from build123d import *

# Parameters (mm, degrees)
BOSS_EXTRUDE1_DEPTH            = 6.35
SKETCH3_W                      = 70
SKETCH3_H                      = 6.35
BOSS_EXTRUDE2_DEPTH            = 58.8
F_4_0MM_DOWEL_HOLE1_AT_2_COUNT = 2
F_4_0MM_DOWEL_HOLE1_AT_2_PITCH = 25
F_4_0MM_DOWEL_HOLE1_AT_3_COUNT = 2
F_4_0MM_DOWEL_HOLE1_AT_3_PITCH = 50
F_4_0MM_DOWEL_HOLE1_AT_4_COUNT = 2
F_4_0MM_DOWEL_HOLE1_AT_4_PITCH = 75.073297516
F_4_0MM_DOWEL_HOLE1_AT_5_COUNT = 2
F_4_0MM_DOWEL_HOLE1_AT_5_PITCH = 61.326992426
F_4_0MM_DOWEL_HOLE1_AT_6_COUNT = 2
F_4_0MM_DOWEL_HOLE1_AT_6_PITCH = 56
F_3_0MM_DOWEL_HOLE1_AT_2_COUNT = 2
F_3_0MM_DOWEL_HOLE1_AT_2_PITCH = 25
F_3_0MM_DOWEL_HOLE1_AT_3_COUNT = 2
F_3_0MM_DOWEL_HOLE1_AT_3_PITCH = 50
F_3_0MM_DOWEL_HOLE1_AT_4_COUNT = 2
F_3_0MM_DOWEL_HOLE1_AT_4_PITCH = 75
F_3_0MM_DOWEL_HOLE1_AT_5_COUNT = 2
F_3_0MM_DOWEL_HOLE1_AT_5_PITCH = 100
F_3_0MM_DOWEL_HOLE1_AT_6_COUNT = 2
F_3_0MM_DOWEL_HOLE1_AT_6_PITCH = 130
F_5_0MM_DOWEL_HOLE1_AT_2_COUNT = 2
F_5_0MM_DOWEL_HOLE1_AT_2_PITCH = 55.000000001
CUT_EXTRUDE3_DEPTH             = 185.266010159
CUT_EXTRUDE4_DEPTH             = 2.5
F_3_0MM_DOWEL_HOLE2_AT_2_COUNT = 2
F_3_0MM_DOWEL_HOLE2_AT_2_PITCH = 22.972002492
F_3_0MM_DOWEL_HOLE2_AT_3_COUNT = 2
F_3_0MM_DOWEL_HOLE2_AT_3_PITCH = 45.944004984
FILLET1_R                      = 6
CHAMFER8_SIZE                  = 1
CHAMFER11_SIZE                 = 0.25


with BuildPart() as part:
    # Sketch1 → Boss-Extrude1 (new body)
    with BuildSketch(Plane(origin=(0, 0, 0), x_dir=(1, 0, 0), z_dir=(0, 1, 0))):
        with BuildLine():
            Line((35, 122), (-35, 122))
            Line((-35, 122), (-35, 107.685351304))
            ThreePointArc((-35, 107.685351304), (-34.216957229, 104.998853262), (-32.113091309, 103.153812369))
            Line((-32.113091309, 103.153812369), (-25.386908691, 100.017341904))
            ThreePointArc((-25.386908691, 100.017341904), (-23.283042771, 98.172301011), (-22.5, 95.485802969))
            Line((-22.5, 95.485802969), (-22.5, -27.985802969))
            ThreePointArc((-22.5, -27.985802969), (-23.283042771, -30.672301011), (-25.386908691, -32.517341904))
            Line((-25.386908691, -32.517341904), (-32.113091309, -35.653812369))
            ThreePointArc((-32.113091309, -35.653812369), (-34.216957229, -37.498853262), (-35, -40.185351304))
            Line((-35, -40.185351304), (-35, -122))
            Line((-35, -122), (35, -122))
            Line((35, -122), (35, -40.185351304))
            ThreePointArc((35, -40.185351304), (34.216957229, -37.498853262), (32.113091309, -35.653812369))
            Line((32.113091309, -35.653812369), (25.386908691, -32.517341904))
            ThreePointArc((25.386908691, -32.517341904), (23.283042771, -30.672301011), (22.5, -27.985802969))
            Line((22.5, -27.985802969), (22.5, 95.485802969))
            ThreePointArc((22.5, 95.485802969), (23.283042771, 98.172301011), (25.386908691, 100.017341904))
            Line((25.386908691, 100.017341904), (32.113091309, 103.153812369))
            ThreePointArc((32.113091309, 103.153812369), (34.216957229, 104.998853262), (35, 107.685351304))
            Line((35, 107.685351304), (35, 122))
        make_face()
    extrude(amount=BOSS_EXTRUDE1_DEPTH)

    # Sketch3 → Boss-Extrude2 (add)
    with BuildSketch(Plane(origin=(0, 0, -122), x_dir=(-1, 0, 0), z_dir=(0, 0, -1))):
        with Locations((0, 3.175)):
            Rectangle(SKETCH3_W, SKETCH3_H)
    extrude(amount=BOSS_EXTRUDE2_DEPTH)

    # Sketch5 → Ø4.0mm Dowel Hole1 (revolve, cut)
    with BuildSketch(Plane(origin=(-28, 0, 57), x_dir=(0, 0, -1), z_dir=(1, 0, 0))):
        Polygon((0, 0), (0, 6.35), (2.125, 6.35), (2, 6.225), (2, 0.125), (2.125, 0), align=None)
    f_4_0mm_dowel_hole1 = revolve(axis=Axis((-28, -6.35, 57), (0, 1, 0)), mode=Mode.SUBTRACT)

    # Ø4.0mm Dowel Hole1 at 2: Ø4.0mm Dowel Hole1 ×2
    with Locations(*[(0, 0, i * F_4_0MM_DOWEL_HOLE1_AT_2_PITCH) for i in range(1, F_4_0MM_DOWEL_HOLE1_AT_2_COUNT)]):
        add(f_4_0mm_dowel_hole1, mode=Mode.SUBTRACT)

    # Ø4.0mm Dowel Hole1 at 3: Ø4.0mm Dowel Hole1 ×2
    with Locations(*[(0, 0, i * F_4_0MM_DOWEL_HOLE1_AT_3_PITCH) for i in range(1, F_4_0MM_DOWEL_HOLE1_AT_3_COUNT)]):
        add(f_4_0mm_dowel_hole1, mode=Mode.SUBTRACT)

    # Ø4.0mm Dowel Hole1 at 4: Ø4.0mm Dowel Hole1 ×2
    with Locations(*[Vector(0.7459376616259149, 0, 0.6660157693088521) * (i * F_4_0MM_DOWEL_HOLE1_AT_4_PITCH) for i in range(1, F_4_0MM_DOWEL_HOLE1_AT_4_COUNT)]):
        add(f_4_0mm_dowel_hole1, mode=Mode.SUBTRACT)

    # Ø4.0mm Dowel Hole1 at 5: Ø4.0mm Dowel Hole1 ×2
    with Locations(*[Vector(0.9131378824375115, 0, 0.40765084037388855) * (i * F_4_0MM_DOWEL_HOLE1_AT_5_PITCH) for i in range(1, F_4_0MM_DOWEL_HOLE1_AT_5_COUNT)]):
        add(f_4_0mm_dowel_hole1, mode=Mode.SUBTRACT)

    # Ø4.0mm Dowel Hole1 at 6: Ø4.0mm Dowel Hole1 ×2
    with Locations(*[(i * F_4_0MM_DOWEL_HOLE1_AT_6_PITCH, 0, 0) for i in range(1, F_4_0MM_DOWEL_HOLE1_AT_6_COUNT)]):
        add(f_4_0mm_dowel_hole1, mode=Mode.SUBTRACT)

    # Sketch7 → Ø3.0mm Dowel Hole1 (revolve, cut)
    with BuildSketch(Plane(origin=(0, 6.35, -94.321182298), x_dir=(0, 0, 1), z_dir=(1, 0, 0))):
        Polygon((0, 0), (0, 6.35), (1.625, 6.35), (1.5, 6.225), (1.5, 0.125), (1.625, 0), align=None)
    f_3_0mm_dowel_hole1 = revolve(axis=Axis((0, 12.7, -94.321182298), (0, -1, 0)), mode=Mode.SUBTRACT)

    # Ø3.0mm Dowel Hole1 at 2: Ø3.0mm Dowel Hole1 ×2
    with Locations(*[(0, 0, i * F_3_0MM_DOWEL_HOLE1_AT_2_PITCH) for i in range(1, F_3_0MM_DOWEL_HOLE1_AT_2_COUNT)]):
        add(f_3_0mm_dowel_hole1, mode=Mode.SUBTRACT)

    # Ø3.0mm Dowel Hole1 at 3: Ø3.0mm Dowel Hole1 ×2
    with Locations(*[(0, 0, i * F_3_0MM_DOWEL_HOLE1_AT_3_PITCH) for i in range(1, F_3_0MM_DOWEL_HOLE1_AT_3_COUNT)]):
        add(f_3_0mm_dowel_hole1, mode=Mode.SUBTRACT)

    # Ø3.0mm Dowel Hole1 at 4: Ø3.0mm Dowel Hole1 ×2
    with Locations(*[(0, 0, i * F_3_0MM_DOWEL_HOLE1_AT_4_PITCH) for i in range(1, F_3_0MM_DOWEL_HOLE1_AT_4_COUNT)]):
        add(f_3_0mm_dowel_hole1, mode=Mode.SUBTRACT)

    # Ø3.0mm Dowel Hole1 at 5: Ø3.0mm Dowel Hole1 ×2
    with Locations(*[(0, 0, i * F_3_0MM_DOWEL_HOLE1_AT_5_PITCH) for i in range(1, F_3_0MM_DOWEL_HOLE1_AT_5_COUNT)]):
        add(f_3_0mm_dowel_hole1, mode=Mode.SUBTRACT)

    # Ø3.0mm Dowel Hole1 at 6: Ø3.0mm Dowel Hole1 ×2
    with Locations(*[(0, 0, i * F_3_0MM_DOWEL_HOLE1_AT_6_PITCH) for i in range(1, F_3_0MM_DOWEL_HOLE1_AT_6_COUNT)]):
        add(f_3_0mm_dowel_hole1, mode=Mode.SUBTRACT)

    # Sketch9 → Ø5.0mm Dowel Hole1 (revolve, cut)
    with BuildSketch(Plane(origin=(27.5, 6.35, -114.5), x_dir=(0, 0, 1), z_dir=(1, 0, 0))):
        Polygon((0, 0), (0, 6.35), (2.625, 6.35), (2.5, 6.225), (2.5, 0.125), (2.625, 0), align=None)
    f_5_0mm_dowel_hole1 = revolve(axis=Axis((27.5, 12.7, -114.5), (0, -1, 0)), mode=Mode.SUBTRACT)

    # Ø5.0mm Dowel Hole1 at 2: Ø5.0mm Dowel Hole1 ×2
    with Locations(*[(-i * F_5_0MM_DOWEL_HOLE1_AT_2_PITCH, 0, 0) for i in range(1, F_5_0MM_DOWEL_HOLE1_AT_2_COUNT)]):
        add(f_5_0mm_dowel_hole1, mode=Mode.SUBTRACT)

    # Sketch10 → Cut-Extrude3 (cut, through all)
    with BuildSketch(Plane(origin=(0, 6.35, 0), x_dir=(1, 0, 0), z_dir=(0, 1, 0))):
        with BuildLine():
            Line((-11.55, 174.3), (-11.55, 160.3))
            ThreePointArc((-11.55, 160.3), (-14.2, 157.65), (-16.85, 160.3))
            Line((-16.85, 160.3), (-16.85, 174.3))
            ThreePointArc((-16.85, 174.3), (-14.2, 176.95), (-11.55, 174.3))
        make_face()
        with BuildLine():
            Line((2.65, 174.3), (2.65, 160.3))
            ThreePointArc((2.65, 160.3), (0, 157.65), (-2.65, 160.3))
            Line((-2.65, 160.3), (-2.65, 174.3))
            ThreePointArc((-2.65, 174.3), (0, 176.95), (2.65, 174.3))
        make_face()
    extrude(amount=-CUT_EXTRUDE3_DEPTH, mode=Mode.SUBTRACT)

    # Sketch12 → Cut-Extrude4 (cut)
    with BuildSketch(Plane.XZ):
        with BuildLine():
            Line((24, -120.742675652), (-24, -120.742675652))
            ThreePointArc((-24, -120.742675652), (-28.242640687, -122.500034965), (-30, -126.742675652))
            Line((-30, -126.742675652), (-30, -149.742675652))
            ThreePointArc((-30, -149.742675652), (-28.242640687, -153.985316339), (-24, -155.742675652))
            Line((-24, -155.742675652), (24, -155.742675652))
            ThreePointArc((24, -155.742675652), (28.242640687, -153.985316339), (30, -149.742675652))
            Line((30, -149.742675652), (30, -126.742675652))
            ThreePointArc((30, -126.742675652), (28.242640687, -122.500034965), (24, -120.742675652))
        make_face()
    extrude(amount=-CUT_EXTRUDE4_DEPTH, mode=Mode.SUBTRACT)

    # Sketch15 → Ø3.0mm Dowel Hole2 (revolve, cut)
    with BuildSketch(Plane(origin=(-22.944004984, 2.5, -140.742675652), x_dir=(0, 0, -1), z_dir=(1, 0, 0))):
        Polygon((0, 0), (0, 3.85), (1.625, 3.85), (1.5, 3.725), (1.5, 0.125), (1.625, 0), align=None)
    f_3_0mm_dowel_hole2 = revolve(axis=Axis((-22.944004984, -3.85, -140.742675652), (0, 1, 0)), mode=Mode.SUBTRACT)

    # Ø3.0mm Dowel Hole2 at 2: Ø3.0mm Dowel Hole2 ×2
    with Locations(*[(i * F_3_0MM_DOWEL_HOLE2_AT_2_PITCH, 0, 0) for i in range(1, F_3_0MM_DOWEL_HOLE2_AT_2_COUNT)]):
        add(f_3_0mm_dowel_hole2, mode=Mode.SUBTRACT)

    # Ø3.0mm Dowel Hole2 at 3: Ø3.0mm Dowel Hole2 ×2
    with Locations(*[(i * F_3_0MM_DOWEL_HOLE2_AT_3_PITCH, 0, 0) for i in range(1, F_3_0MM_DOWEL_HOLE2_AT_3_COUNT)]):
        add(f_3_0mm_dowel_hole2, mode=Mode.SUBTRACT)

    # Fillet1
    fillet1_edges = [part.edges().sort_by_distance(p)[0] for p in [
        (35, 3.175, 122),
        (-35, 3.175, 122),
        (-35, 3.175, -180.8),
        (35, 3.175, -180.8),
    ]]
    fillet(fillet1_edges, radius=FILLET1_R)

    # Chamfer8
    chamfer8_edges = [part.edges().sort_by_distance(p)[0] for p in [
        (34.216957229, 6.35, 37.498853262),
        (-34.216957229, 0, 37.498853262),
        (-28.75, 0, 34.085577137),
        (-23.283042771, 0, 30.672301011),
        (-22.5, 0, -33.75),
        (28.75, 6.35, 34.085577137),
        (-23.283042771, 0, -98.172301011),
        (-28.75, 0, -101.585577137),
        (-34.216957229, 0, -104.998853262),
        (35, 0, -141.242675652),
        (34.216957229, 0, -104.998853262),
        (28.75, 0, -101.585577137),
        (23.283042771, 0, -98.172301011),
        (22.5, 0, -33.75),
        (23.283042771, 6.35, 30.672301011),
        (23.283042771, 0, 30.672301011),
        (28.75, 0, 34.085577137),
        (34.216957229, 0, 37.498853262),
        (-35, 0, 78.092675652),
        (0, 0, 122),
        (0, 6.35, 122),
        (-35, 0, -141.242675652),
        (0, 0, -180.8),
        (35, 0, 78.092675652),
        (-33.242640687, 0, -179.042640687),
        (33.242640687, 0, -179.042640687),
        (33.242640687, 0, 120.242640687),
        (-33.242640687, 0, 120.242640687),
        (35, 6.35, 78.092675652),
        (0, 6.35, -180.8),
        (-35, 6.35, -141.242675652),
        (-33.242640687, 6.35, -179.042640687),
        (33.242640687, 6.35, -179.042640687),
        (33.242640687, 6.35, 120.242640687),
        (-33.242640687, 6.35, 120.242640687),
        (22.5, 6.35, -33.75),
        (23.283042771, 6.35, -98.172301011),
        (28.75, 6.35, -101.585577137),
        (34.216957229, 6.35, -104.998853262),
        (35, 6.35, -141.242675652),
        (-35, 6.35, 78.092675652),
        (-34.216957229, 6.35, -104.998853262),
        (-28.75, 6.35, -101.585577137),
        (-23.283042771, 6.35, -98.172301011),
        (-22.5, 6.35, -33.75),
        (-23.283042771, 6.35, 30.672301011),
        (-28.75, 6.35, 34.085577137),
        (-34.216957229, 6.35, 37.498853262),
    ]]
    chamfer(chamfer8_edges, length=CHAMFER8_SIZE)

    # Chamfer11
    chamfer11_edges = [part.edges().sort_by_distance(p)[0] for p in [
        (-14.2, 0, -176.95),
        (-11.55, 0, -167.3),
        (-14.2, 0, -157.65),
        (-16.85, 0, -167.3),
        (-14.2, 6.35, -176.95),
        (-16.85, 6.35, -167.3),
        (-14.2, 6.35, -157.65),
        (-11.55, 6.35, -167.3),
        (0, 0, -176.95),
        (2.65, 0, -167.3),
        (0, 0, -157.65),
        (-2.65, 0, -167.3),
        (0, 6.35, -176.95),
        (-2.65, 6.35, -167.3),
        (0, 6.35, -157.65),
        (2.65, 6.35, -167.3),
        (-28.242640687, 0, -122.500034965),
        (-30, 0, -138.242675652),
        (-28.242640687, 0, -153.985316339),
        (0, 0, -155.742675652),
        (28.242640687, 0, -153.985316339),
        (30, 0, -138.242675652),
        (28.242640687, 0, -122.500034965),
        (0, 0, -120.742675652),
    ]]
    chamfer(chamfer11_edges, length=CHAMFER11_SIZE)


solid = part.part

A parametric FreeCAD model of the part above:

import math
import FreeCAD as App
import Part
import Sketcher
Q = App.Units.Quantity


def edges_at(feature, points):
    """Names of the edges that pass closest to the given points."""
    edges = feature.Shape.Edges
    near = lambda p: min(range(len(edges)), key=lambda i: edges[i].distToShape(Part.Vertex(*p))[0])
    return sorted({f"Edge{near(p) + 1}" for p in points})

doc = App.newDocument("Part")
params = doc.addObject("Spreadsheet::Sheet", "Params")
for row, (alias, value) in enumerate([
    ("sketch1_radius", "5 mm"),
    ("sketch1_width", "70 mm"),
    ("pad1_length", "6.35 mm"),
    ("sketch2_width", "70 mm"),
    ("sketch2_height", "6.35 mm"),
    ("pad2_length", "58.8 mm"),
    ("sketch3_width", "6.1 mm"),
    ("sketch3_width2", "6.35 mm"),
    ("groove_angle", "360 deg"),
    ("linearpattern_pitch", "25 mm"),
    ("linearpattern2_pitch", "50 mm"),
    ("linearpattern3_pitch", "75.073298 mm"),
    ("linearpattern4_pitch", "61.326992 mm"),
    ("linearpattern5_pitch", "56 mm"),
    ("sketch4_width", "6.1 mm"),
    ("sketch4_width2", "6.35 mm"),
    ("groove2_angle", "360 deg"),
    ("linearpattern6_pitch", "25 mm"),
    ("linearpattern7_pitch", "50 mm"),
    ("linearpattern8_pitch", "75 mm"),
    ("linearpattern9_pitch", "100 mm"),
    ("linearpattern10_pitch", "130 mm"),
    ("sketch5_width", "6.1 mm"),
    ("sketch5_width2", "6.35 mm"),
    ("groove3_angle", "360 deg"),
    ("linearpattern11_pitch", "55 mm"),
    ("sketch6_height", "14 mm"),
    ("sketch6_radius", "2.65 mm"),
    ("sketch7_radius", "6 mm"),
    ("sketch7_width", "48 mm"),
    ("sketch7_height", "23 mm"),
    ("pocket2_length", "2.5 mm"),
    ("sketch8_width", "3.6 mm"),
    ("sketch8_width2", "3.85 mm"),
    ("groove4_angle", "360 deg"),
    ("linearpattern12_pitch", "22.972002 mm"),
    ("linearpattern13_pitch", "45.944005 mm"),
    ("fillet_radius", "6 mm"),
    ("chamfer_size", "1 mm"),
    ("chamfer2_size", "0.25 mm"),
], start=1):
    params.set(f"A{row}", alias)
    params.set(f"B{row}", "=" + value)
    params.setAlias(f"B{row}", alias)

body = doc.addObject("PartDesign::Body", "Body")

sketch1 = doc.addObject("Sketcher::SketchObject", "Sketch")
body.addObject(sketch1)
sketch1.AttachmentSupport = (doc.XZ_Plane, [""])
sketch1.MapMode = "FlatFace"
sketch1.addGeometry([
    Part.LineSegment(App.Vector(35, -122, 0), App.Vector(-35, -122, 0)),
    Part.LineSegment(App.Vector(-35, -122, 0), App.Vector(-35, -107.685351, 0)),
    Part.ArcOfCircle(Part.Circle(App.Vector(-30, -107.685351, 0), App.Vector(0, 0, 1), 5), math.radians(115), math.radians(180)),
    Part.LineSegment(App.Vector(-32.113091, -103.153812, 0), App.Vector(-25.386909, -100.017342, 0)),
    Part.ArcOfCircle(Part.Circle(App.Vector(-27.5, -95.485803, 0), App.Vector(0, 0, 1), 5), math.radians(-65), math.radians(0)),
    Part.LineSegment(App.Vector(-22.5, -95.485803, 0), App.Vector(-22.5, 27.985803, 0)),
    Part.ArcOfCircle(Part.Circle(App.Vector(-27.5, 27.985803, 0), App.Vector(0, 0, 1), 5), math.radians(0), math.radians(65)),
    Part.LineSegment(App.Vector(-25.386909, 32.517342, 0), App.Vector(-32.113091, 35.653812, 0)),
    Part.ArcOfCircle(Part.Circle(App.Vector(-30, 40.185351, 0), App.Vector(0, 0, 1), 5), math.radians(180), math.radians(245)),
    Part.LineSegment(App.Vector(-35, 40.185351, 0), App.Vector(-35, 122, 0)),
    Part.LineSegment(App.Vector(-35, 122, 0), App.Vector(35, 122, 0)),
    Part.LineSegment(App.Vector(35, 122, 0), App.Vector(35, 40.185351, 0)),
    Part.ArcOfCircle(Part.Circle(App.Vector(30, 40.185351, 0), App.Vector(0, 0, 1), 5), math.radians(-65), math.radians(0)),
    Part.LineSegment(App.Vector(32.113091, 35.653812, 0), App.Vector(25.386909, 32.517342, 0)),
    Part.ArcOfCircle(Part.Circle(App.Vector(27.5, 27.985803, 0), App.Vector(0, 0, 1), 5), math.radians(115), math.radians(180)),
    Part.LineSegment(App.Vector(22.5, 27.985803, 0), App.Vector(22.5, -95.485803, 0)),
    Part.ArcOfCircle(Part.Circle(App.Vector(27.5, -95.485803, 0), App.Vector(0, 0, 1), 5), math.radians(180), math.radians(245)),
    Part.LineSegment(App.Vector(25.386909, -100.017342, 0), App.Vector(32.113091, -103.153812, 0)),
    Part.ArcOfCircle(Part.Circle(App.Vector(30, -107.685351, 0), App.Vector(0, 0, 1), 5), math.radians(0), math.radians(65)),
    Part.LineSegment(App.Vector(35, -107.685351, 0), App.Vector(35, -122, 0)),
], False)
sketch1.addConstraint([
    Sketcher.Constraint("Coincident", 0, 2, 1, 1),
    Sketcher.Constraint("Tangent", 1, 2, 2, 2),
    Sketcher.Constraint("Tangent", 2, 1, 3, 1),
    Sketcher.Constraint("Tangent", 3, 2, 4, 1),
    Sketcher.Constraint("Tangent", 4, 2, 5, 1),
    Sketcher.Constraint("Tangent", 5, 2, 6, 1),
    Sketcher.Constraint("Tangent", 6, 2, 7, 1),
    Sketcher.Constraint("Tangent", 7, 2, 8, 2),
    Sketcher.Constraint("Tangent", 8, 1, 9, 1),
    Sketcher.Constraint("Coincident", 9, 2, 10, 1),
    Sketcher.Constraint("Coincident", 10, 2, 11, 1),
    Sketcher.Constraint("Tangent", 11, 2, 12, 2),
    Sketcher.Constraint("Tangent", 12, 1, 13, 1),
    Sketcher.Constraint("Tangent", 13, 2, 14, 1),
    Sketcher.Constraint("Tangent", 14, 2, 15, 1),
    Sketcher.Constraint("Tangent", 15, 2, 16, 1),
    Sketcher.Constraint("Tangent", 16, 2, 17, 1),
    Sketcher.Constraint("Tangent", 17, 2, 18, 2),
    Sketcher.Constraint("Tangent", 18, 1, 19, 1),
    Sketcher.Constraint("Coincident", 19, 2, 0, 1),
    Sketcher.Constraint("Horizontal", 0),
    Sketcher.Constraint("Vertical", 1),
    Sketcher.Constraint("Vertical", 5),
    Sketcher.Constraint("Vertical", 9),
    Sketcher.Constraint("Horizontal", 10),
    Sketcher.Constraint("Vertical", 11),
    Sketcher.Constraint("Vertical", 15),
    Sketcher.Constraint("Vertical", 19),
    Sketcher.Constraint("Equal", 2, 4),
    Sketcher.Constraint("Equal", 4, 6),
    Sketcher.Constraint("Equal", 6, 8),
    Sketcher.Constraint("Equal", 8, 12),
    Sketcher.Constraint("Equal", 12, 14),
    Sketcher.Constraint("Equal", 14, 16),
    Sketcher.Constraint("Equal", 16, 18),
    Sketcher.Constraint("Symmetric", 0, 2, 10, 2, -1, 1),
    Sketcher.Constraint("Symmetric", 8, 3, 12, 3, -2),
    Sketcher.Constraint("Symmetric", 6, 3, 14, 3, -2),
    Sketcher.Constraint("Symmetric", 2, 3, 18, 3, -2),
    Sketcher.Constraint("Parallel", 3, 13),
    Sketcher.Constraint("Parallel", 7, 17),
    Sketcher.Constraint("Radius", 2, 5.0),
    Sketcher.Constraint("DistanceX", 0, 2, 0, 1, 70.0),
    Sketcher.Constraint("Angle", 3, Q("25 deg")),
    Sketcher.Constraint("DistanceY", 0, 2, -1, 1, 122.0),
    Sketcher.Constraint("DistanceX", 6, 3, 14, 3, 55.0),
    Sketcher.Constraint("DistanceY", 1, 1, 1, 2, 14.314649),
    Sketcher.Constraint("DistanceY", 9, 1, 9, 2, 81.814649),
])
sketch1.setExpression("Constraints[41]", "Params.sketch1_radius")
sketch1.setExpression("Constraints[42]", "Params.sketch1_width")
pad1 = doc.addObject("PartDesign::Pad", "Pad")
body.addObject(pad1)
pad1.Profile = sketch1
pad1.setExpression("Length", "Params.pad1_length")
pad1.Reversed = True

sketch2 = doc.addObject("Sketcher::SketchObject", "Sketch001")
body.addObject(sketch2)
sketch2.AttachmentSupport = (doc.XY_Plane, [""])
sketch2.MapMode = "FlatFace"
sketch2.AttachmentOffset = App.Placement(App.Vector(0, 0, -122), App.Rotation())
sketch2.addGeometry([
    Part.LineSegment(App.Vector(35, 6.35, 0), App.Vector(35, 0, 0)),
    Part.LineSegment(App.Vector(35, 0, 0), App.Vector(-35, 0, 0)),
    Part.LineSegment(App.Vector(-35, 0, 0), App.Vector(-35, 6.35, 0)),
    Part.LineSegment(App.Vector(-35, 6.35, 0), App.Vector(35, 6.35, 0)),
], False)
sketch2.addConstraint([
    Sketcher.Constraint("Coincident", 0, 2, 1, 1),
    Sketcher.Constraint("Coincident", 1, 2, 2, 1),
    Sketcher.Constraint("Coincident", 2, 2, 3, 1),
    Sketcher.Constraint("Coincident", 3, 2, 0, 1),
    Sketcher.Constraint("Vertical", 0),
    Sketcher.Constraint("Horizontal", 1),
    Sketcher.Constraint("Vertical", 2),
    Sketcher.Constraint("Horizontal", 3),
    Sketcher.Constraint("Symmetric", 0, 2, 1, 2, -1, 1),
    Sketcher.Constraint("DistanceX", 1, 2, 1, 1, 70.0),
    Sketcher.Constraint("DistanceY", 0, 2, 0, 1, 6.35),
])
sketch2.setExpression("Constraints[9]", "Params.sketch2_width")
sketch2.setExpression("Constraints[10]", "Params.sketch2_height")
pad2 = doc.addObject("PartDesign::Pad", "Pad001")
body.addObject(pad2)
pad2.Profile = sketch2
pad2.setExpression("Length", "Params.pad2_length")
pad2.Reversed = True

sketch3 = doc.addObject("Sketcher::SketchObject", "Sketch002")
body.addObject(sketch3)
sketch3.AttachmentSupport = (doc.YZ_Plane, [""])
sketch3.MapMode = "FlatFace"
sketch3.AttachmentOffset = App.Placement(App.Vector(0, 0, -28), App.Rotation())
sketch3.addGeometry([
    Part.LineSegment(App.Vector(6.35, 57, 0), App.Vector(0, 57, 0)),
    Part.LineSegment(App.Vector(0, 57, 0), App.Vector(0, 54.875, 0)),
    Part.LineSegment(App.Vector(0, 54.875, 0), App.Vector(0.125, 55, 0)),
    Part.LineSegment(App.Vector(0.125, 55, 0), App.Vector(6.225, 55, 0)),
    Part.LineSegment(App.Vector(6.225, 55, 0), App.Vector(6.35, 54.875, 0)),
    Part.LineSegment(App.Vector(6.35, 54.875, 0), App.Vector(6.35, 57, 0)),
], False)
sketch3.addGeometry(Part.LineSegment(App.Vector(0, 57, 0), App.Vector(6.35, 57, 0)), True)
sketch3.addConstraint([
    Sketcher.Constraint("Coincident", 0, 2, 1, 1),
    Sketcher.Constraint("Coincident", 1, 2, 2, 1),
    Sketcher.Constraint("Coincident", 2, 2, 3, 1),
    Sketcher.Constraint("Coincident", 3, 2, 4, 1),
    Sketcher.Constraint("Coincident", 4, 2, 5, 1),
    Sketcher.Constraint("Coincident", 5, 2, 0, 1),
    Sketcher.Constraint("Horizontal", 0),
    Sketcher.Constraint("Vertical", 1),
    Sketcher.Constraint("Horizontal", 3),
    Sketcher.Constraint("Vertical", 5),
    Sketcher.Constraint("Horizontal", 6),
    Sketcher.Constraint("Coincident", 6, 1, 0, 2),
    Sketcher.Constraint("PointOnObject", 0, 2, -2),
    Sketcher.Constraint("Perpendicular", 2, 4),
    Sketcher.Constraint("Horizontal", 1, 2, 4, 2),
    Sketcher.Constraint("Vertical", 4, 2, 6, 2),
    Sketcher.Constraint("Equal", 2, 4),
    Sketcher.Constraint("DistanceX", 3, 1, 3, 2, 6.1),
    Sketcher.Constraint("DistanceY", -1, 1, 0, 2, 57.0),
    Sketcher.Constraint("DistanceY", -1, 1, 2, 2, 55.0),
    Sketcher.Constraint("DistanceX", 0, 2, 0, 1, 6.35),
])
sketch3.setExpression("Constraints[17]", "Params.sketch3_width")
sketch3.setExpression("Constraints[20]", "Params.sketch3_width2")
groove = doc.addObject("PartDesign::Groove", "Groove")
body.addObject(groove)
groove.Profile = sketch3
groove.ReferenceAxis = (sketch3, ["Axis0"])
groove.setExpression("Angle", "Params.groove_angle")
doc.recompute()

linearpattern = doc.addObject("PartDesign::LinearPattern", "LinearPattern")
body.addObject(linearpattern)
linearpattern.Originals = [groove]
linearpattern.Direction = (doc.Z_Axis, [""])
linearpattern.Mode = "offset"
linearpattern.setExpression("Offset", "Params.linearpattern_pitch")
linearpattern.Occurrences = 2
body.Tip = linearpattern
doc.recompute()

linearpattern2 = doc.addObject("PartDesign::LinearPattern", "LinearPattern001")
body.addObject(linearpattern2)
linearpattern2.Originals = [groove]
linearpattern2.Direction = (doc.Z_Axis, [""])
linearpattern2.Mode = "offset"
linearpattern2.setExpression("Offset", "Params.linearpattern2_pitch")
linearpattern2.Occurrences = 2
body.Tip = linearpattern2
doc.recompute()

datumline = doc.addObject("PartDesign::Line", "DatumLine")
body.addObject(datumline)
datumline.Placement = App.Placement(App.Vector(0, 0, 0), App.Rotation(App.Vector(0, 0, 1), App.Vector(0.745937662, 0, 0.666015769)))
linearpattern3 = doc.addObject("PartDesign::LinearPattern", "LinearPattern002")
body.addObject(linearpattern3)
linearpattern3.Originals = [groove]
linearpattern3.Direction = (datumline, [""])
linearpattern3.Mode = "offset"
linearpattern3.setExpression("Offset", "Params.linearpattern3_pitch")
linearpattern3.Occurrences = 2
body.Tip = linearpattern3
doc.recompute()

datumline2 = doc.addObject("PartDesign::Line", "DatumLine001")
body.addObject(datumline2)
datumline2.Placement = App.Placement(App.Vector(0, 0, 0), App.Rotation(App.Vector(0, 0, 1), App.Vector(0.913137882, 0, 0.40765084)))
linearpattern4 = doc.addObject("PartDesign::LinearPattern", "LinearPattern003")
body.addObject(linearpattern4)
linearpattern4.Originals = [groove]
linearpattern4.Direction = (datumline2, [""])
linearpattern4.Mode = "offset"
linearpattern4.setExpression("Offset", "Params.linearpattern4_pitch")
linearpattern4.Occurrences = 2
body.Tip = linearpattern4
doc.recompute()

linearpattern5 = doc.addObject("PartDesign::LinearPattern", "LinearPattern004")
body.addObject(linearpattern5)
linearpattern5.Originals = [groove]
linearpattern5.Direction = (doc.X_Axis, [""])
linearpattern5.Mode = "offset"
linearpattern5.setExpression("Offset", "Params.linearpattern5_pitch")
linearpattern5.Occurrences = 2
body.Tip = linearpattern5

sketch4 = doc.addObject("Sketcher::SketchObject", "Sketch003")
body.addObject(sketch4)
sketch4.AttachmentSupport = (doc.YZ_Plane, [""])
sketch4.MapMode = "FlatFace"
sketch4.addGeometry([
    Part.LineSegment(App.Vector(0, -94.321182, 0), App.Vector(6.35, -94.321182, 0)),
    Part.LineSegment(App.Vector(6.35, -94.321182, 0), App.Vector(6.35, -92.696182, 0)),
    Part.LineSegment(App.Vector(6.35, -92.696182, 0), App.Vector(6.225, -92.821182, 0)),
    Part.LineSegment(App.Vector(6.225, -92.821182, 0), App.Vector(0.125, -92.821182, 0)),
    Part.LineSegment(App.Vector(0.125, -92.821182, 0), App.Vector(0, -92.696182, 0)),
    Part.LineSegment(App.Vector(0, -92.696182, 0), App.Vector(0, -94.321182, 0)),
], False)
sketch4.addGeometry(Part.LineSegment(App.Vector(6.35, -94.321182, 0), App.Vector(0, -94.321182, 0)), True)
sketch4.addConstraint([
    Sketcher.Constraint("Coincident", 0, 2, 1, 1),
    Sketcher.Constraint("Coincident", 1, 2, 2, 1),
    Sketcher.Constraint("Coincident", 2, 2, 3, 1),
    Sketcher.Constraint("Coincident", 3, 2, 4, 1),
    Sketcher.Constraint("Coincident", 4, 2, 5, 1),
    Sketcher.Constraint("Coincident", 5, 2, 0, 1),
    Sketcher.Constraint("Horizontal", 0),
    Sketcher.Constraint("Vertical", 1),
    Sketcher.Constraint("Horizontal", 3),
    Sketcher.Constraint("Vertical", 5),
    Sketcher.Constraint("Horizontal", 6),
    Sketcher.Constraint("Coincident", 6, 1, 0, 2),
    Sketcher.Constraint("PointOnObject", 4, 2, -2),
    Sketcher.Constraint("PointOnObject", 6, 2, -2),
    Sketcher.Constraint("Perpendicular", 2, 4),
    Sketcher.Constraint("Horizontal", 1, 2, 4, 2),
    Sketcher.Constraint("Equal", 2, 4),
    Sketcher.Constraint("DistanceX", 3, 2, 3, 1, 6.1),
    Sketcher.Constraint("DistanceX", 0, 1, 0, 2, 6.35),
    Sketcher.Constraint("DistanceY", 0, 2, 2, 2, 1.5),
    Sketcher.Constraint("DistanceY", 0, 2, -1, 1, 94.321182),
])
sketch4.setExpression("Constraints[17]", "Params.sketch4_width")
sketch4.setExpression("Constraints[18]", "Params.sketch4_width2")
groove2 = doc.addObject("PartDesign::Groove", "Groove001")
body.addObject(groove2)
groove2.Profile = sketch4
groove2.ReferenceAxis = (sketch4, ["Axis0"])
groove2.setExpression("Angle", "Params.groove2_angle")
doc.recompute()

linearpattern6 = doc.addObject("PartDesign::LinearPattern", "LinearPattern005")
body.addObject(linearpattern6)
linearpattern6.Originals = [groove2]
linearpattern6.Direction = (doc.Z_Axis, [""])
linearpattern6.Mode = "offset"
linearpattern6.setExpression("Offset", "Params.linearpattern6_pitch")
linearpattern6.Occurrences = 2
body.Tip = linearpattern6
doc.recompute()

linearpattern7 = doc.addObject("PartDesign::LinearPattern", "LinearPattern006")
body.addObject(linearpattern7)
linearpattern7.Originals = [groove2]
linearpattern7.Direction = (doc.Z_Axis, [""])
linearpattern7.Mode = "offset"
linearpattern7.setExpression("Offset", "Params.linearpattern7_pitch")
linearpattern7.Occurrences = 2
body.Tip = linearpattern7
doc.recompute()

linearpattern8 = doc.addObject("PartDesign::LinearPattern", "LinearPattern007")
body.addObject(linearpattern8)
linearpattern8.Originals = [groove2]
linearpattern8.Direction = (doc.Z_Axis, [""])
linearpattern8.Mode = "offset"
linearpattern8.setExpression("Offset", "Params.linearpattern8_pitch")
linearpattern8.Occurrences = 2
body.Tip = linearpattern8
doc.recompute()

linearpattern9 = doc.addObject("PartDesign::LinearPattern", "LinearPattern008")
body.addObject(linearpattern9)
linearpattern9.Originals = [groove2]
linearpattern9.Direction = (doc.Z_Axis, [""])
linearpattern9.Mode = "offset"
linearpattern9.setExpression("Offset", "Params.linearpattern9_pitch")
linearpattern9.Occurrences = 2
body.Tip = linearpattern9
doc.recompute()

linearpattern10 = doc.addObject("PartDesign::LinearPattern", "LinearPattern009")
body.addObject(linearpattern10)
linearpattern10.Originals = [groove2]
linearpattern10.Direction = (doc.Z_Axis, [""])
linearpattern10.Mode = "offset"
linearpattern10.setExpression("Offset", "Params.linearpattern10_pitch")
linearpattern10.Occurrences = 2
body.Tip = linearpattern10

sketch5 = doc.addObject("Sketcher::SketchObject", "Sketch004")
body.addObject(sketch5)
sketch5.AttachmentSupport = (doc.YZ_Plane, [""])
sketch5.MapMode = "FlatFace"
sketch5.AttachmentOffset = App.Placement(App.Vector(0, 0, 27.5), App.Rotation())
sketch5.addGeometry([
    Part.LineSegment(App.Vector(0, -114.5, 0), App.Vector(6.35, -114.5, 0)),
    Part.LineSegment(App.Vector(6.35, -114.5, 0), App.Vector(6.35, -111.875, 0)),
    Part.LineSegment(App.Vector(6.35, -111.875, 0), App.Vector(6.225, -112, 0)),
    Part.LineSegment(App.Vector(6.225, -112, 0), App.Vector(0.125, -112, 0)),
    Part.LineSegment(App.Vector(0.125, -112, 0), App.Vector(0, -111.875, 0)),
    Part.LineSegment(App.Vector(0, -111.875, 0), App.Vector(0, -114.5, 0)),
], False)
sketch5.addGeometry(Part.LineSegment(App.Vector(6.35, -114.5, 0), App.Vector(0, -114.5, 0)), True)
sketch5.addConstraint([
    Sketcher.Constraint("Coincident", 0, 2, 1, 1),
    Sketcher.Constraint("Coincident", 1, 2, 2, 1),
    Sketcher.Constraint("Coincident", 2, 2, 3, 1),
    Sketcher.Constraint("Coincident", 3, 2, 4, 1),
    Sketcher.Constraint("Coincident", 4, 2, 5, 1),
    Sketcher.Constraint("Coincident", 5, 2, 0, 1),
    Sketcher.Constraint("Horizontal", 0),
    Sketcher.Constraint("Vertical", 1),
    Sketcher.Constraint("Horizontal", 3),
    Sketcher.Constraint("Vertical", 5),
    Sketcher.Constraint("Horizontal", 6),
    Sketcher.Constraint("Coincident", 6, 1, 0, 2),
    Sketcher.Constraint("PointOnObject", 4, 2, -2),
    Sketcher.Constraint("PointOnObject", 6, 2, -2),
    Sketcher.Constraint("Perpendicular", 2, 4),
    Sketcher.Constraint("Horizontal", 1, 2, 4, 2),
    Sketcher.Constraint("Equal", 2, 4),
    Sketcher.Constraint("DistanceX", 3, 2, 3, 1, 6.1),
    Sketcher.Constraint("DistanceY", 2, 2, -1, 1, 112.0),
    Sketcher.Constraint("DistanceX", 0, 1, 0, 2, 6.35),
    Sketcher.Constraint("DistanceY", 0, 2, -1, 1, 114.5),
])
sketch5.setExpression("Constraints[17]", "Params.sketch5_width")
sketch5.setExpression("Constraints[19]", "Params.sketch5_width2")
groove3 = doc.addObject("PartDesign::Groove", "Groove002")
body.addObject(groove3)
groove3.Profile = sketch5
groove3.ReferenceAxis = (sketch5, ["Axis0"])
groove3.setExpression("Angle", "Params.groove3_angle")
doc.recompute()

linearpattern11 = doc.addObject("PartDesign::LinearPattern", "LinearPattern010")
body.addObject(linearpattern11)
linearpattern11.Originals = [groove3]
linearpattern11.Direction = (doc.X_Axis, [""])
linearpattern11.Mode = "offset"
linearpattern11.setExpression("Offset", "Params.linearpattern11_pitch")
linearpattern11.Occurrences = 2
linearpattern11.Reversed = True
body.Tip = linearpattern11

sketch6 = doc.addObject("Sketcher::SketchObject", "Sketch005")
body.addObject(sketch6)
sketch6.AttachmentSupport = (doc.XZ_Plane, [""])
sketch6.MapMode = "FlatFace"
sketch6.AttachmentOffset = App.Placement(App.Vector(0, 0, -6.35), App.Rotation())
sketch6.addGeometry([
    Part.LineSegment(App.Vector(-11.55, -160.3, 0), App.Vector(-11.55, -174.3, 0)),
    Part.ArcOfCircle(Part.Circle(App.Vector(-14.2, -174.3, 0), App.Vector(0, 0, 1), 2.65), math.radians(180), math.radians(360)),
    Part.LineSegment(App.Vector(-16.85, -174.3, 0), App.Vector(-16.85, -160.3, 0)),
    Part.ArcOfCircle(Part.Circle(App.Vector(-14.2, -160.3, 0), App.Vector(0, 0, 1), 2.65), math.radians(0), math.radians(180)),
    Part.LineSegment(App.Vector(2.65, -160.3, 0), App.Vector(2.65, -174.3, 0)),
    Part.ArcOfCircle(Part.Circle(App.Vector(0, -174.3, 0), App.Vector(0, 0, 1), 2.65), math.radians(180), math.radians(360)),
    Part.LineSegment(App.Vector(-2.65, -174.3, 0), App.Vector(-2.65, -160.3, 0)),
    Part.ArcOfCircle(Part.Circle(App.Vector(0, -160.3, 0), App.Vector(0, 0, 1), 2.65), math.radians(0), math.radians(180)),
], False)
sketch6.addConstraint([
    Sketcher.Constraint("Tangent", 0, 2, 1, 2),
    Sketcher.Constraint("Tangent", 1, 1, 2, 1),
    Sketcher.Constraint("Tangent", 2, 2, 3, 2),
    Sketcher.Constraint("Tangent", 3, 1, 0, 1),
    Sketcher.Constraint("Tangent", 4, 2, 5, 2),
    Sketcher.Constraint("Tangent", 5, 1, 6, 1),
    Sketcher.Constraint("Tangent", 6, 2, 7, 2),
    Sketcher.Constraint("Tangent", 7, 1, 4, 1),
    Sketcher.Constraint("Vertical", 0),
    Sketcher.Constraint("Vertical", 2),
    Sketcher.Constraint("Vertical", 4),
    Sketcher.Constraint("Vertical", 6),
    Sketcher.Constraint("Equal", 3, 5),
    Sketcher.Constraint("PointOnObject", 5, 3, -2),
    Sketcher.Constraint("Horizontal", 1, 3, 5, 3),
    Sketcher.Constraint("Horizontal", 3, 3, 7, 3),
    Sketcher.Constraint("DistanceY", 0, 2, 0, 1, 14.0),
    Sketcher.Constraint("Radius", 1, 2.65),
    Sketcher.Constraint("DistanceX", 1, 3, -1, 1, 14.2),
    Sketcher.Constraint("DistanceY", 1, 3, -1, 1, 174.3),
])
sketch6.setExpression("Constraints[16]", "Params.sketch6_height")
sketch6.setExpression("Constraints[17]", "Params.sketch6_radius")
pocket1 = doc.addObject("PartDesign::Pocket", "Pocket")
body.addObject(pocket1)
pocket1.Profile = sketch6
pocket1.Type = "ThroughAll"
pocket1.Reversed = True

sketch7 = doc.addObject("Sketcher::SketchObject", "Sketch006")
body.addObject(sketch7)
sketch7.AttachmentSupport = (doc.XZ_Plane, [""])
sketch7.MapMode = "FlatFace"
sketch7.addGeometry([
    Part.LineSegment(App.Vector(24, -120.742676, 0), App.Vector(-24, -120.742676, 0)),
    Part.ArcOfCircle(Part.Circle(App.Vector(-24, -126.742676, 0), App.Vector(0, 0, 1), 6), math.radians(90), math.radians(180)),
    Part.LineSegment(App.Vector(-30, -126.742676, 0), App.Vector(-30, -149.742676, 0)),
    Part.ArcOfCircle(Part.Circle(App.Vector(-24, -149.742676, 0), App.Vector(0, 0, 1), 6), math.radians(180), math.radians(270)),
    Part.LineSegment(App.Vector(-24, -155.742676, 0), App.Vector(24, -155.742676, 0)),
    Part.ArcOfCircle(Part.Circle(App.Vector(24, -149.742676, 0), App.Vector(0, 0, 1), 6), math.radians(-90), math.radians(0)),
    Part.LineSegment(App.Vector(30, -149.742676, 0), App.Vector(30, -126.742676, 0)),
    Part.ArcOfCircle(Part.Circle(App.Vector(24, -126.742676, 0), App.Vector(0, 0, 1), 6), math.radians(0), math.radians(90)),
], False)
sketch7.addConstraint([
    Sketcher.Constraint("Tangent", 0, 2, 1, 1),
    Sketcher.Constraint("Tangent", 1, 2, 2, 1),
    Sketcher.Constraint("Tangent", 2, 2, 3, 1),
    Sketcher.Constraint("Tangent", 3, 2, 4, 1),
    Sketcher.Constraint("Tangent", 4, 2, 5, 1),
    Sketcher.Constraint("Tangent", 5, 2, 6, 1),
    Sketcher.Constraint("Tangent", 6, 2, 7, 1),
    Sketcher.Constraint("Tangent", 7, 2, 0, 1),
    Sketcher.Constraint("Horizontal", 0),
    Sketcher.Constraint("Vertical", 2),
    Sketcher.Constraint("Horizontal", 4),
    Sketcher.Constraint("Vertical", 6),
    Sketcher.Constraint("Equal", 1, 3),
    Sketcher.Constraint("Equal", 3, 5),
    Sketcher.Constraint("Equal", 5, 7),
    Sketcher.Constraint("Radius", 1, 6.0),
    Sketcher.Constraint("DistanceX", 0, 2, 0, 1, 48.0),
    Sketcher.Constraint("DistanceY", 2, 2, 2, 1, 23.0),
    Sketcher.Constraint("DistanceX", 1, 3, -1, 1, 24.0),
    Sketcher.Constraint("DistanceY", 1, 3, -1, 1, 126.742676),
])
sketch7.setExpression("Constraints[15]", "Params.sketch7_radius")
sketch7.setExpression("Constraints[16]", "Params.sketch7_width")
sketch7.setExpression("Constraints[17]", "Params.sketch7_height")
pocket2 = doc.addObject("PartDesign::Pocket", "Pocket001")
body.addObject(pocket2)
pocket2.Profile = sketch7
pocket2.setExpression("Length", "Params.pocket2_length")

sketch8 = doc.addObject("Sketcher::SketchObject", "Sketch007")
body.addObject(sketch8)
sketch8.AttachmentSupport = (doc.YZ_Plane, [""])
sketch8.MapMode = "FlatFace"
sketch8.AttachmentOffset = App.Placement(App.Vector(0, 0, -22.944005), App.Rotation())
sketch8.addGeometry([
    Part.LineSegment(App.Vector(6.35, -140.742676, 0), App.Vector(2.5, -140.742676, 0)),
    Part.LineSegment(App.Vector(2.5, -140.742676, 0), App.Vector(2.5, -142.367676, 0)),
    Part.LineSegment(App.Vector(2.5, -142.367676, 0), App.Vector(2.625, -142.242676, 0)),
    Part.LineSegment(App.Vector(2.625, -142.242676, 0), App.Vector(6.225, -142.242676, 0)),
    Part.LineSegment(App.Vector(6.225, -142.242676, 0), App.Vector(6.35, -142.367676, 0)),
    Part.LineSegment(App.Vector(6.35, -142.367676, 0), App.Vector(6.35, -140.742676, 0)),
], False)
sketch8.addGeometry(Part.LineSegment(App.Vector(2.5, -140.742676, 0), App.Vector(6.35, -140.742676, 0)), True)
sketch8.addConstraint([
    Sketcher.Constraint("Coincident", 0, 2, 1, 1),
    Sketcher.Constraint("Coincident", 1, 2, 2, 1),
    Sketcher.Constraint("Coincident", 2, 2, 3, 1),
    Sketcher.Constraint("Coincident", 3, 2, 4, 1),
    Sketcher.Constraint("Coincident", 4, 2, 5, 1),
    Sketcher.Constraint("Coincident", 5, 2, 0, 1),
    Sketcher.Constraint("Horizontal", 0),
    Sketcher.Constraint("Vertical", 1),
    Sketcher.Constraint("Horizontal", 3),
    Sketcher.Constraint("Vertical", 5),
    Sketcher.Constraint("Horizontal", 6),
    Sketcher.Constraint("Coincident", 6, 1, 0, 2),
    Sketcher.Constraint("Perpendicular", 2, 4),
    Sketcher.Constraint("Horizontal", 1, 2, 4, 2),
    Sketcher.Constraint("Vertical", 4, 2, 6, 2),
    Sketcher.Constraint("Equal", 2, 4),
    Sketcher.Constraint("DistanceX", 3, 1, 3, 2, 3.6),
    Sketcher.Constraint("DistanceX", 0, 2, 0, 1, 3.85),
    Sketcher.Constraint("DistanceX", -1, 1, 0, 2, 2.5),
    Sketcher.Constraint("DistanceY", 2, 2, 0, 2, 1.5),
    Sketcher.Constraint("DistanceY", 0, 2, -1, 1, 140.742676),
])
sketch8.setExpression("Constraints[16]", "Params.sketch8_width")
sketch8.setExpression("Constraints[17]", "Params.sketch8_width2")
groove4 = doc.addObject("PartDesign::Groove", "Groove003")
body.addObject(groove4)
groove4.Profile = sketch8
groove4.ReferenceAxis = (sketch8, ["Axis0"])
groove4.setExpression("Angle", "Params.groove4_angle")
doc.recompute()

linearpattern12 = doc.addObject("PartDesign::LinearPattern", "LinearPattern011")
body.addObject(linearpattern12)
linearpattern12.Originals = [groove4]
linearpattern12.Direction = (doc.X_Axis, [""])
linearpattern12.Mode = "offset"
linearpattern12.setExpression("Offset", "Params.linearpattern12_pitch")
linearpattern12.Occurrences = 2
body.Tip = linearpattern12
doc.recompute()

linearpattern13 = doc.addObject("PartDesign::LinearPattern", "LinearPattern012")
body.addObject(linearpattern13)
linearpattern13.Originals = [groove4]
linearpattern13.Direction = (doc.X_Axis, [""])
linearpattern13.Mode = "offset"
linearpattern13.setExpression("Offset", "Params.linearpattern13_pitch")
linearpattern13.Occurrences = 2
body.Tip = linearpattern13
doc.recompute()

fillet = doc.addObject("PartDesign::Fillet", "Fillet")
body.addObject(fillet)
fillet.Base = (linearpattern13, edges_at(linearpattern13, [
    (35, 3.175, 122),
    (-35, 3.175, 122),
    (-35, 3.175, -180.8),
    (35, 3.175, -180.8),
]))
fillet.setExpression("Radius", "Params.fillet_radius")
doc.recompute()

chamfer = doc.addObject("PartDesign::Chamfer", "Chamfer")
body.addObject(chamfer)
chamfer.Base = (fillet, edges_at(fillet, [
    (34.217, 6.35, 37.499),
    (-34.217, 0, 37.499),
    (-28.75, 0, 34.086),
    (-23.283, 0, 30.672),
    (-22.5, 0, -33.75),
    (28.75, 6.35, 34.086),
    (-23.283, 0, -98.172),
    (-28.75, 0, -101.586),
    (-34.217, 0, -104.999),
    (35, 0, -141.243),
    (34.217, 0, -104.999),
    (28.75, 0, -101.586),
    (23.283, 0, -98.172),
    (22.5, 0, -33.75),
    (23.283, 6.35, 30.672),
    (23.283, 0, 30.672),
    (28.75, 0, 34.086),
    (34.217, 0, 37.499),
    (-35, 0, 78.093),
    (0, 0, 122),
    (0, 6.35, 122),
    (-35, 0, -141.243),
    (0, 0, -180.8),
    (35, 0, 78.093),
    (-33.243, 0, -179.043),
    (33.243, 0, -179.043),
    (33.243, 0, 120.243),
    (-33.243, 0, 120.243),
    (35, 6.35, 78.093),
    (0, 6.35, -180.8),
    (-35, 6.35, -141.243),
    (-33.243, 6.35, -179.043),
    (33.243, 6.35, -179.043),
    (33.243, 6.35, 120.243),
    (-33.243, 6.35, 120.243),
    (22.5, 6.35, -33.75),
    (23.283, 6.35, -98.172),
    (28.75, 6.35, -101.586),
    (34.217, 6.35, -104.999),
    (35, 6.35, -141.243),
    (-35, 6.35, 78.093),
    (-34.217, 6.35, -104.999),
    (-28.75, 6.35, -101.586),
    (-23.283, 6.35, -98.172),
    (-22.5, 6.35, -33.75),
    (-23.283, 6.35, 30.672),
    (-28.75, 6.35, 34.086),
    (-34.217, 6.35, 37.499),
]))
chamfer.setExpression("Size", "Params.chamfer_size")
doc.recompute()

chamfer2 = doc.addObject("PartDesign::Chamfer", "Chamfer001")
body.addObject(chamfer2)
chamfer2.Base = (chamfer, edges_at(chamfer, [
    (-14.2, 0, -176.95),
    (-11.55, 0, -167.3),
    (-14.2, 0, -157.65),
    (-16.85, 0, -167.3),
    (-14.2, 6.35, -176.95),
    (-16.85, 6.35, -167.3),
    (-14.2, 6.35, -157.65),
    (-11.55, 6.35, -167.3),
    (0, 0, -176.95),
    (2.65, 0, -167.3),
    (0, 0, -157.65),
    (-2.65, 0, -167.3),
    (0, 6.35, -176.95),
    (-2.65, 6.35, -167.3),
    (0, 6.35, -157.65),
    (2.65, 6.35, -167.3),
    (-28.243, 0, -122.5),
    (-30, 0, -138.243),
    (-28.243, 0, -153.985),
    (0, 0, -155.743),
    (28.243, 0, -153.985),
    (30, 0, -138.243),
    (28.243, 0, -122.5),
    (0, 0, -120.743),
]))
chamfer2.setExpression("Size", "Params.chamfer2_size")

doc.recompute()
